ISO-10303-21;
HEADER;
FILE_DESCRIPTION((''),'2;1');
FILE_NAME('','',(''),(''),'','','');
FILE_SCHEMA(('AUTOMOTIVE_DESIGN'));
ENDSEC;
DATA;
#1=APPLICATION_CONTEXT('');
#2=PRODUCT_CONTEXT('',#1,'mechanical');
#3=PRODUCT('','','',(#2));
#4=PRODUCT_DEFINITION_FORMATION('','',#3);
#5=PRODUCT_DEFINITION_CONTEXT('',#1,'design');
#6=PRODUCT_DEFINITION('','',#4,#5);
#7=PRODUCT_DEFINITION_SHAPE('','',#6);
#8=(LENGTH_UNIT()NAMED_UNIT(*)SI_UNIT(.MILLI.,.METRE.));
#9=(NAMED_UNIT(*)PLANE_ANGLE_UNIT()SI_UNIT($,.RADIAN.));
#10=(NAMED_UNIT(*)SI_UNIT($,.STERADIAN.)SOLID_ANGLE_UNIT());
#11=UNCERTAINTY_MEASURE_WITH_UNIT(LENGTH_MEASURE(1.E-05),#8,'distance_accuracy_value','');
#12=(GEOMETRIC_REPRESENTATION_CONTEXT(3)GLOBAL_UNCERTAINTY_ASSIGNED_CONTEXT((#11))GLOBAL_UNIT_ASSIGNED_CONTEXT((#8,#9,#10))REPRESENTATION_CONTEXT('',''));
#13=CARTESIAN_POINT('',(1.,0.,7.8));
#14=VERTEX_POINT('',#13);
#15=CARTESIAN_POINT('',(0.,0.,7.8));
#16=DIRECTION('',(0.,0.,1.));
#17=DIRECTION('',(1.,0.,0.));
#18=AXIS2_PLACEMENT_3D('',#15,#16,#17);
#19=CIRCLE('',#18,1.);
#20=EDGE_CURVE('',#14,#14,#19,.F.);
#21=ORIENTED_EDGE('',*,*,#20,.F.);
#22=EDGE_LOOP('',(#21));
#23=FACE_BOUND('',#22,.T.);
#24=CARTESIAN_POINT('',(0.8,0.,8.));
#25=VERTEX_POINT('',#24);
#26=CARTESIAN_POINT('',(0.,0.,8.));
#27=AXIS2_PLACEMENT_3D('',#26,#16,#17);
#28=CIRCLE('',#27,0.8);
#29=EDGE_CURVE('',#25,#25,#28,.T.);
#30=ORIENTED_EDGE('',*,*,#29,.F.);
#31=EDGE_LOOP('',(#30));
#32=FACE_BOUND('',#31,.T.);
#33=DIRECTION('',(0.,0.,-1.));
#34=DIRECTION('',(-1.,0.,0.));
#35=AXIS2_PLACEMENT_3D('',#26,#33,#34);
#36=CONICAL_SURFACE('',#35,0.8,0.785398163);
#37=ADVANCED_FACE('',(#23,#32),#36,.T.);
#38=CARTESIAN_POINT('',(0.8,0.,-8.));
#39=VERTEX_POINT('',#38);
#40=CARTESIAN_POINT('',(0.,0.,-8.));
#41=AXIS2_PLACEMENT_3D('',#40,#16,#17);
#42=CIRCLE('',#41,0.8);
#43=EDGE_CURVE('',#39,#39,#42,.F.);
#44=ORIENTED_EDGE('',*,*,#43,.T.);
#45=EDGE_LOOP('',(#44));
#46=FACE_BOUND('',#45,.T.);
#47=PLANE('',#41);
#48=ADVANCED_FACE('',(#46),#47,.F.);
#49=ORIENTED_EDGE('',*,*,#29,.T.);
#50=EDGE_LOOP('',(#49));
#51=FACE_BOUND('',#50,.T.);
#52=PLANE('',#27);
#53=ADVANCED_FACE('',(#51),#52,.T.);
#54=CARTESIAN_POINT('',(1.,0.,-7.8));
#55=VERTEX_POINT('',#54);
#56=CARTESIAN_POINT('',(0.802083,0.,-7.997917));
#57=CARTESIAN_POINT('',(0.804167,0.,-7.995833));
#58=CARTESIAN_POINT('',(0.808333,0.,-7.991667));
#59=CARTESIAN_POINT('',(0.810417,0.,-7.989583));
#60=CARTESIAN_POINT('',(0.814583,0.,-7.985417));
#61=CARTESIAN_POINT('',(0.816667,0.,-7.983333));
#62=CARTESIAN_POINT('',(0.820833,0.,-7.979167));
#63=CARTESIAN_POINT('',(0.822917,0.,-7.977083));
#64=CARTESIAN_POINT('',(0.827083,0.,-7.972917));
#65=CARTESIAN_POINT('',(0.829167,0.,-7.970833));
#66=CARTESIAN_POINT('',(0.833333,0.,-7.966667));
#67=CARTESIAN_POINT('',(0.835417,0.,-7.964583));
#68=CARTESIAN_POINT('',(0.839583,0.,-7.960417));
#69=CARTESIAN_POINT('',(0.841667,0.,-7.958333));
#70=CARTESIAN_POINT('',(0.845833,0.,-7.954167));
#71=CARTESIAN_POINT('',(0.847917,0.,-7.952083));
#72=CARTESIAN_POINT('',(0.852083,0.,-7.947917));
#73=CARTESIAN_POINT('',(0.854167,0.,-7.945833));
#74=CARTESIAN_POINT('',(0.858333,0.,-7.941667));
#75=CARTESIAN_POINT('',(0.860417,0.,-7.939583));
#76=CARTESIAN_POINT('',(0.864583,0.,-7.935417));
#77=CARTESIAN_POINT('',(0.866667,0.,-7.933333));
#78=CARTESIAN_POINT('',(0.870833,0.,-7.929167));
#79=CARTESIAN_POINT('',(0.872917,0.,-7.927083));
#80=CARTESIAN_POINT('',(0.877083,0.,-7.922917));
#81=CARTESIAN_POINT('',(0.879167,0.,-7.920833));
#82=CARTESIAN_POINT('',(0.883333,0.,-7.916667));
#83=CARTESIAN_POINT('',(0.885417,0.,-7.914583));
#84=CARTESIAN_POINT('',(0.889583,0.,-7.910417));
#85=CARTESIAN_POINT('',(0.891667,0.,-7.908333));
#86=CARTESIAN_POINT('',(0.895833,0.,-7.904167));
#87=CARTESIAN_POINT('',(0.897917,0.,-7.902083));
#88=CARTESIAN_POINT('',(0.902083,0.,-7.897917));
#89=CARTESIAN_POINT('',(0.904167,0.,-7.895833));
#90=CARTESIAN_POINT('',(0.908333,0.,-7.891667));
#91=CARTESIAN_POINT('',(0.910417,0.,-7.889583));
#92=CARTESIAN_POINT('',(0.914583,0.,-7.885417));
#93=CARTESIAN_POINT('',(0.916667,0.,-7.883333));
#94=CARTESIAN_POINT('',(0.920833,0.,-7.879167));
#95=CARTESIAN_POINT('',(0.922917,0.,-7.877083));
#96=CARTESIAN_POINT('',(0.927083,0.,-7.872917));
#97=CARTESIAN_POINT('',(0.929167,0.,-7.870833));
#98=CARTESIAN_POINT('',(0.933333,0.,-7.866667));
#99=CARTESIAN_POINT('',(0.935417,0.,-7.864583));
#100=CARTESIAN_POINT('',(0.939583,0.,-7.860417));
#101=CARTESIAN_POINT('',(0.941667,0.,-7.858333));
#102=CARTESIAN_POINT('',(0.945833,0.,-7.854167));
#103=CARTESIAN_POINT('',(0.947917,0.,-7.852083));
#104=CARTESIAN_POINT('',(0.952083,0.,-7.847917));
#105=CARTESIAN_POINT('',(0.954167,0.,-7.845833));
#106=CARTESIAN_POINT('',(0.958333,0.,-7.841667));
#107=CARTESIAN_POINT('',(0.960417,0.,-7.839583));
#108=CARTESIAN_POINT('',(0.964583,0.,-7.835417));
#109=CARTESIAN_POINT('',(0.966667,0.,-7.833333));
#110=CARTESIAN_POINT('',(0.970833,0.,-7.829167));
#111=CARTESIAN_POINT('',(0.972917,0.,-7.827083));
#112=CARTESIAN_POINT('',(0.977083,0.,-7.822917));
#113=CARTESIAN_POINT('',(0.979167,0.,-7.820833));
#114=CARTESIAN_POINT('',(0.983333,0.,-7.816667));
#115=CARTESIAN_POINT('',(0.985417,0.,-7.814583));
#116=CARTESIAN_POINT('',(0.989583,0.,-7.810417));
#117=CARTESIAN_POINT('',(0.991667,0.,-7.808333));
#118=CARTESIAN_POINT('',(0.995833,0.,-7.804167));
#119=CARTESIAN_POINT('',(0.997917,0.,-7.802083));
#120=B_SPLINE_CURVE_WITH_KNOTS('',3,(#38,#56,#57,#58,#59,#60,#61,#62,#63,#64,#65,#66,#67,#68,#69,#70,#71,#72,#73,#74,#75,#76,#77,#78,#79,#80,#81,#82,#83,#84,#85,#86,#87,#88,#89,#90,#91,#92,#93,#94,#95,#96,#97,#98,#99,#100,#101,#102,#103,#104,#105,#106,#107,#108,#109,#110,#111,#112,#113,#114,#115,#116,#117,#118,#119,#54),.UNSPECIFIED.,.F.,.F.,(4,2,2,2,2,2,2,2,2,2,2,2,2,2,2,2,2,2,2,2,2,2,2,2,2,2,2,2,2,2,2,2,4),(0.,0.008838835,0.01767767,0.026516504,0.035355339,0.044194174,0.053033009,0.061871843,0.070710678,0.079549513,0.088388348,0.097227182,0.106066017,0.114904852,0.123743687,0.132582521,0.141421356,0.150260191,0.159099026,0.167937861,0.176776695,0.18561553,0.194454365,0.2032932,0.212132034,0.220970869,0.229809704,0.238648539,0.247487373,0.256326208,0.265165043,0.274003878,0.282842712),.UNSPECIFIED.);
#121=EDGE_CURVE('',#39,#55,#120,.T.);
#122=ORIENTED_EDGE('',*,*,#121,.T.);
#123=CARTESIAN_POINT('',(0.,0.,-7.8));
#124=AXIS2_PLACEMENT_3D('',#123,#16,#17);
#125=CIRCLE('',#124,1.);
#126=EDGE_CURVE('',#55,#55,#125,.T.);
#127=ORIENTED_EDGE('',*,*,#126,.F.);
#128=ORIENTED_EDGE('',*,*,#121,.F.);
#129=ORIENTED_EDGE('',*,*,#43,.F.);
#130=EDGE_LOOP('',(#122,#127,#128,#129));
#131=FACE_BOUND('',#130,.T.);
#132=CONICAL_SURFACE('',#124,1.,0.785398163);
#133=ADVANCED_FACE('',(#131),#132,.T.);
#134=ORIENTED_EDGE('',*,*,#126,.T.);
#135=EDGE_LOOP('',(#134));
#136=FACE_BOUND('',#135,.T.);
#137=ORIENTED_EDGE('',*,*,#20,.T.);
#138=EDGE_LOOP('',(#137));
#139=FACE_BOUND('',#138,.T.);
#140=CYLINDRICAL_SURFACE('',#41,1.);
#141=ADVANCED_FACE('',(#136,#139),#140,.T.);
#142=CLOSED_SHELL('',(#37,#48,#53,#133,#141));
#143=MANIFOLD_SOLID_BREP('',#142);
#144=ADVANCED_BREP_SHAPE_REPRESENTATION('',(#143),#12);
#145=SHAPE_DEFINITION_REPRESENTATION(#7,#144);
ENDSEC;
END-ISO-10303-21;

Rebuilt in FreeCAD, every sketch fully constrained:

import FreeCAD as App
import Part
import Sketcher
from FreeCAD import Vector


def edges_at(feature, points):
    """Names of the edges that pass closest to the given points."""
    edges = feature.Shape.Edges
    near = lambda p: min(range(len(edges)), key=lambda i: edges[i].distToShape(Part.Vertex(*p))[0])
    return sorted({f"Edge{near(p) + 1}" for p in points})

doc = App.newDocument("Part")
body = doc.addObject("PartDesign::Body", "Body")

# Sketch on XY plane
sketch1 = doc.addObject("Sketcher::SketchObject", "Sketch")
body.addObject(sketch1)
sketch1.AttachmentSupport = (doc.XY_Plane, [""])
sketch1.MapMode = "FlatFace"
sketch1.addGeometry(Part.Circle(Vector(0, 0, 0), Vector(0, 0, 1), 1), False)
sketch1.addConstraint(Sketcher.Constraint("Coincident", 0, 3, -1, 1))
sketch1.addConstraint(Sketcher.Constraint("Diameter", 0, 2.0))
pad1 = doc.addObject("PartDesign::Pad", "Pad")
body.addObject(pad1)
pad1.Profile = sketch1
pad1.Type = "TwoLengths"
pad1.Length = 8
pad1.Length2 = 8
doc.recompute()

chamfer = doc.addObject("PartDesign::Chamfer", "Chamfer")
body.addObject(chamfer)
chamfer.Base = (pad1, edges_at(pad1, [(-1, 0, -8), (-1, 0, 8)]))
chamfer.Size = 0.2

doc.recompute()
